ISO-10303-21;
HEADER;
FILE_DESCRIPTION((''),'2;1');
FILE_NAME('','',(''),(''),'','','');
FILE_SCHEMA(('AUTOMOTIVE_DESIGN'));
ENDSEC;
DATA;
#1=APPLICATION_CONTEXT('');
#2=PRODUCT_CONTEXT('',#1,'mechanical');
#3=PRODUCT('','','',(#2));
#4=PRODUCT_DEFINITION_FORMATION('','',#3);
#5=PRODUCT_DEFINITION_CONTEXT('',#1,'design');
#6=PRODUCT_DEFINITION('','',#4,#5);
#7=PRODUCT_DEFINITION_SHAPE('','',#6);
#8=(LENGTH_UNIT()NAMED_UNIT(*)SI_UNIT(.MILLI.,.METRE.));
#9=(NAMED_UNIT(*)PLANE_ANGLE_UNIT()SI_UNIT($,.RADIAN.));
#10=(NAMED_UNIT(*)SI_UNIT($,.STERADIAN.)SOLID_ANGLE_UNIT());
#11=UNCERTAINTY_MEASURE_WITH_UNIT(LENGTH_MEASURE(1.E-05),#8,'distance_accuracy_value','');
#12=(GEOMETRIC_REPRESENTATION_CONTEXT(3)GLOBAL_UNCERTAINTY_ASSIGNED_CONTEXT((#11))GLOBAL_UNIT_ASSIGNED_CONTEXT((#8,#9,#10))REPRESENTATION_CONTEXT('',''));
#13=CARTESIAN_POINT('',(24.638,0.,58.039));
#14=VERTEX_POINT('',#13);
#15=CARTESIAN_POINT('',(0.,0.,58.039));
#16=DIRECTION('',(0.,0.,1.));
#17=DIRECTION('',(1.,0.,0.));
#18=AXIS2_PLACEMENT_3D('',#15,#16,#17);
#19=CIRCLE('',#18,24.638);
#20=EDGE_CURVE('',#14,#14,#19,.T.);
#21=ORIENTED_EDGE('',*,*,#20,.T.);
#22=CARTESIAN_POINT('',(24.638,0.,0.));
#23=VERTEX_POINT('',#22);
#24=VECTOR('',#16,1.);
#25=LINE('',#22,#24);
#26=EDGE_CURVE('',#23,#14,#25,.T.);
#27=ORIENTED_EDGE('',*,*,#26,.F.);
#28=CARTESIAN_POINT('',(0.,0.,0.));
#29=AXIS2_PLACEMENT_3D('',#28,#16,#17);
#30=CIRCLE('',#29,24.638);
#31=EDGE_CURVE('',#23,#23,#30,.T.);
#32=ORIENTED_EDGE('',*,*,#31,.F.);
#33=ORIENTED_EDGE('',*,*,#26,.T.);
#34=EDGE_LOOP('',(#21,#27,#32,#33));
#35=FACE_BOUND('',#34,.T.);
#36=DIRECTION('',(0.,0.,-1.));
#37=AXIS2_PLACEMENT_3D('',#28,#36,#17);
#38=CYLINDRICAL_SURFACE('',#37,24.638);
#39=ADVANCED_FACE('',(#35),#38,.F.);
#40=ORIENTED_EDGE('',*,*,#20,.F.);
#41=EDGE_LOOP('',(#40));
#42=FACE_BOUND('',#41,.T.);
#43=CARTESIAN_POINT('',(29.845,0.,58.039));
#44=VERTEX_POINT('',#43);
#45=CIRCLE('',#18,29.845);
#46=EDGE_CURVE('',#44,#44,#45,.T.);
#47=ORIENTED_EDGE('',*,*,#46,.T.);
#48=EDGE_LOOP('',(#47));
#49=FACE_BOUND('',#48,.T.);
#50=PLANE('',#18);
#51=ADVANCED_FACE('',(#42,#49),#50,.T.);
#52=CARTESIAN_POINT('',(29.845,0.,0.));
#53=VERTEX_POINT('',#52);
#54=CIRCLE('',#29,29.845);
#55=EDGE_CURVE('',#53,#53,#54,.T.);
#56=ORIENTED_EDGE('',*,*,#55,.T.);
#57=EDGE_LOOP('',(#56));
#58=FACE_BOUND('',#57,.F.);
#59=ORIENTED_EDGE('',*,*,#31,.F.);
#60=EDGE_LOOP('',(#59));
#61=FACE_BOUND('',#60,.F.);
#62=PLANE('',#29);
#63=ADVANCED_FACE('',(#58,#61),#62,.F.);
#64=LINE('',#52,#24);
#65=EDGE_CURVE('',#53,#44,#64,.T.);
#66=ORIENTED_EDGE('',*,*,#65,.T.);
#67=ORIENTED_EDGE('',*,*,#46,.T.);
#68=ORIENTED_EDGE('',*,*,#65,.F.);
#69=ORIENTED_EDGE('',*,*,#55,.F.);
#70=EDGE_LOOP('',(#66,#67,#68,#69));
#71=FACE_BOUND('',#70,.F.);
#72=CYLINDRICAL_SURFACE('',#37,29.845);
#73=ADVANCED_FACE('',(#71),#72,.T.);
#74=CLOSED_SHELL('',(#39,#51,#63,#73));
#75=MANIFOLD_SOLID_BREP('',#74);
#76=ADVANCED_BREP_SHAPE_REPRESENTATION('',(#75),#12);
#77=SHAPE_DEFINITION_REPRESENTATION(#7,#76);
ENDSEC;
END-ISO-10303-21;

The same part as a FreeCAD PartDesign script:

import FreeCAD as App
import Part
import Sketcher
Q = App.Units.Quantity

doc = App.newDocument("Part")
body = doc.addObject("PartDesign::Body", "Body")

# Sketch on XY plane
sketch1 = doc.addObject("Sketcher::SketchObject", "Sketch")
body.addObject(sketch1)
sketch1.AttachmentSupport = (doc.XY_Plane, [""])
sketch1.MapMode = "FlatFace"
sketch1.addGeometry(Part.Circle(App.Vector(0, 0, 0), App.Vector(0, 0, 1), 30), False)
sketch1.addGeometry(Part.Circle(App.Vector(0, 0, 0), App.Vector(0, 0, 1), 25), False)
sketch1.addConstraint(Sketcher.Constraint("Coincident", 0, 3, -1, 1))
sketch1.addConstraint(Sketcher.Constraint("Coincident", 1, 3, -1, 1))
sketch1.addConstraint(Sketcher.Constraint("Diameter", 0, Q("2.35 in")))
sketch1.addConstraint(Sketcher.Constraint("Diameter", 1, Q("1.94 in")))
pad1 = doc.addObject("PartDesign::Pad", "Pad")
body.addObject(pad1)
pad1.Profile = sketch1
pad1.Length = Q("2.285 in")

doc.recompute()
